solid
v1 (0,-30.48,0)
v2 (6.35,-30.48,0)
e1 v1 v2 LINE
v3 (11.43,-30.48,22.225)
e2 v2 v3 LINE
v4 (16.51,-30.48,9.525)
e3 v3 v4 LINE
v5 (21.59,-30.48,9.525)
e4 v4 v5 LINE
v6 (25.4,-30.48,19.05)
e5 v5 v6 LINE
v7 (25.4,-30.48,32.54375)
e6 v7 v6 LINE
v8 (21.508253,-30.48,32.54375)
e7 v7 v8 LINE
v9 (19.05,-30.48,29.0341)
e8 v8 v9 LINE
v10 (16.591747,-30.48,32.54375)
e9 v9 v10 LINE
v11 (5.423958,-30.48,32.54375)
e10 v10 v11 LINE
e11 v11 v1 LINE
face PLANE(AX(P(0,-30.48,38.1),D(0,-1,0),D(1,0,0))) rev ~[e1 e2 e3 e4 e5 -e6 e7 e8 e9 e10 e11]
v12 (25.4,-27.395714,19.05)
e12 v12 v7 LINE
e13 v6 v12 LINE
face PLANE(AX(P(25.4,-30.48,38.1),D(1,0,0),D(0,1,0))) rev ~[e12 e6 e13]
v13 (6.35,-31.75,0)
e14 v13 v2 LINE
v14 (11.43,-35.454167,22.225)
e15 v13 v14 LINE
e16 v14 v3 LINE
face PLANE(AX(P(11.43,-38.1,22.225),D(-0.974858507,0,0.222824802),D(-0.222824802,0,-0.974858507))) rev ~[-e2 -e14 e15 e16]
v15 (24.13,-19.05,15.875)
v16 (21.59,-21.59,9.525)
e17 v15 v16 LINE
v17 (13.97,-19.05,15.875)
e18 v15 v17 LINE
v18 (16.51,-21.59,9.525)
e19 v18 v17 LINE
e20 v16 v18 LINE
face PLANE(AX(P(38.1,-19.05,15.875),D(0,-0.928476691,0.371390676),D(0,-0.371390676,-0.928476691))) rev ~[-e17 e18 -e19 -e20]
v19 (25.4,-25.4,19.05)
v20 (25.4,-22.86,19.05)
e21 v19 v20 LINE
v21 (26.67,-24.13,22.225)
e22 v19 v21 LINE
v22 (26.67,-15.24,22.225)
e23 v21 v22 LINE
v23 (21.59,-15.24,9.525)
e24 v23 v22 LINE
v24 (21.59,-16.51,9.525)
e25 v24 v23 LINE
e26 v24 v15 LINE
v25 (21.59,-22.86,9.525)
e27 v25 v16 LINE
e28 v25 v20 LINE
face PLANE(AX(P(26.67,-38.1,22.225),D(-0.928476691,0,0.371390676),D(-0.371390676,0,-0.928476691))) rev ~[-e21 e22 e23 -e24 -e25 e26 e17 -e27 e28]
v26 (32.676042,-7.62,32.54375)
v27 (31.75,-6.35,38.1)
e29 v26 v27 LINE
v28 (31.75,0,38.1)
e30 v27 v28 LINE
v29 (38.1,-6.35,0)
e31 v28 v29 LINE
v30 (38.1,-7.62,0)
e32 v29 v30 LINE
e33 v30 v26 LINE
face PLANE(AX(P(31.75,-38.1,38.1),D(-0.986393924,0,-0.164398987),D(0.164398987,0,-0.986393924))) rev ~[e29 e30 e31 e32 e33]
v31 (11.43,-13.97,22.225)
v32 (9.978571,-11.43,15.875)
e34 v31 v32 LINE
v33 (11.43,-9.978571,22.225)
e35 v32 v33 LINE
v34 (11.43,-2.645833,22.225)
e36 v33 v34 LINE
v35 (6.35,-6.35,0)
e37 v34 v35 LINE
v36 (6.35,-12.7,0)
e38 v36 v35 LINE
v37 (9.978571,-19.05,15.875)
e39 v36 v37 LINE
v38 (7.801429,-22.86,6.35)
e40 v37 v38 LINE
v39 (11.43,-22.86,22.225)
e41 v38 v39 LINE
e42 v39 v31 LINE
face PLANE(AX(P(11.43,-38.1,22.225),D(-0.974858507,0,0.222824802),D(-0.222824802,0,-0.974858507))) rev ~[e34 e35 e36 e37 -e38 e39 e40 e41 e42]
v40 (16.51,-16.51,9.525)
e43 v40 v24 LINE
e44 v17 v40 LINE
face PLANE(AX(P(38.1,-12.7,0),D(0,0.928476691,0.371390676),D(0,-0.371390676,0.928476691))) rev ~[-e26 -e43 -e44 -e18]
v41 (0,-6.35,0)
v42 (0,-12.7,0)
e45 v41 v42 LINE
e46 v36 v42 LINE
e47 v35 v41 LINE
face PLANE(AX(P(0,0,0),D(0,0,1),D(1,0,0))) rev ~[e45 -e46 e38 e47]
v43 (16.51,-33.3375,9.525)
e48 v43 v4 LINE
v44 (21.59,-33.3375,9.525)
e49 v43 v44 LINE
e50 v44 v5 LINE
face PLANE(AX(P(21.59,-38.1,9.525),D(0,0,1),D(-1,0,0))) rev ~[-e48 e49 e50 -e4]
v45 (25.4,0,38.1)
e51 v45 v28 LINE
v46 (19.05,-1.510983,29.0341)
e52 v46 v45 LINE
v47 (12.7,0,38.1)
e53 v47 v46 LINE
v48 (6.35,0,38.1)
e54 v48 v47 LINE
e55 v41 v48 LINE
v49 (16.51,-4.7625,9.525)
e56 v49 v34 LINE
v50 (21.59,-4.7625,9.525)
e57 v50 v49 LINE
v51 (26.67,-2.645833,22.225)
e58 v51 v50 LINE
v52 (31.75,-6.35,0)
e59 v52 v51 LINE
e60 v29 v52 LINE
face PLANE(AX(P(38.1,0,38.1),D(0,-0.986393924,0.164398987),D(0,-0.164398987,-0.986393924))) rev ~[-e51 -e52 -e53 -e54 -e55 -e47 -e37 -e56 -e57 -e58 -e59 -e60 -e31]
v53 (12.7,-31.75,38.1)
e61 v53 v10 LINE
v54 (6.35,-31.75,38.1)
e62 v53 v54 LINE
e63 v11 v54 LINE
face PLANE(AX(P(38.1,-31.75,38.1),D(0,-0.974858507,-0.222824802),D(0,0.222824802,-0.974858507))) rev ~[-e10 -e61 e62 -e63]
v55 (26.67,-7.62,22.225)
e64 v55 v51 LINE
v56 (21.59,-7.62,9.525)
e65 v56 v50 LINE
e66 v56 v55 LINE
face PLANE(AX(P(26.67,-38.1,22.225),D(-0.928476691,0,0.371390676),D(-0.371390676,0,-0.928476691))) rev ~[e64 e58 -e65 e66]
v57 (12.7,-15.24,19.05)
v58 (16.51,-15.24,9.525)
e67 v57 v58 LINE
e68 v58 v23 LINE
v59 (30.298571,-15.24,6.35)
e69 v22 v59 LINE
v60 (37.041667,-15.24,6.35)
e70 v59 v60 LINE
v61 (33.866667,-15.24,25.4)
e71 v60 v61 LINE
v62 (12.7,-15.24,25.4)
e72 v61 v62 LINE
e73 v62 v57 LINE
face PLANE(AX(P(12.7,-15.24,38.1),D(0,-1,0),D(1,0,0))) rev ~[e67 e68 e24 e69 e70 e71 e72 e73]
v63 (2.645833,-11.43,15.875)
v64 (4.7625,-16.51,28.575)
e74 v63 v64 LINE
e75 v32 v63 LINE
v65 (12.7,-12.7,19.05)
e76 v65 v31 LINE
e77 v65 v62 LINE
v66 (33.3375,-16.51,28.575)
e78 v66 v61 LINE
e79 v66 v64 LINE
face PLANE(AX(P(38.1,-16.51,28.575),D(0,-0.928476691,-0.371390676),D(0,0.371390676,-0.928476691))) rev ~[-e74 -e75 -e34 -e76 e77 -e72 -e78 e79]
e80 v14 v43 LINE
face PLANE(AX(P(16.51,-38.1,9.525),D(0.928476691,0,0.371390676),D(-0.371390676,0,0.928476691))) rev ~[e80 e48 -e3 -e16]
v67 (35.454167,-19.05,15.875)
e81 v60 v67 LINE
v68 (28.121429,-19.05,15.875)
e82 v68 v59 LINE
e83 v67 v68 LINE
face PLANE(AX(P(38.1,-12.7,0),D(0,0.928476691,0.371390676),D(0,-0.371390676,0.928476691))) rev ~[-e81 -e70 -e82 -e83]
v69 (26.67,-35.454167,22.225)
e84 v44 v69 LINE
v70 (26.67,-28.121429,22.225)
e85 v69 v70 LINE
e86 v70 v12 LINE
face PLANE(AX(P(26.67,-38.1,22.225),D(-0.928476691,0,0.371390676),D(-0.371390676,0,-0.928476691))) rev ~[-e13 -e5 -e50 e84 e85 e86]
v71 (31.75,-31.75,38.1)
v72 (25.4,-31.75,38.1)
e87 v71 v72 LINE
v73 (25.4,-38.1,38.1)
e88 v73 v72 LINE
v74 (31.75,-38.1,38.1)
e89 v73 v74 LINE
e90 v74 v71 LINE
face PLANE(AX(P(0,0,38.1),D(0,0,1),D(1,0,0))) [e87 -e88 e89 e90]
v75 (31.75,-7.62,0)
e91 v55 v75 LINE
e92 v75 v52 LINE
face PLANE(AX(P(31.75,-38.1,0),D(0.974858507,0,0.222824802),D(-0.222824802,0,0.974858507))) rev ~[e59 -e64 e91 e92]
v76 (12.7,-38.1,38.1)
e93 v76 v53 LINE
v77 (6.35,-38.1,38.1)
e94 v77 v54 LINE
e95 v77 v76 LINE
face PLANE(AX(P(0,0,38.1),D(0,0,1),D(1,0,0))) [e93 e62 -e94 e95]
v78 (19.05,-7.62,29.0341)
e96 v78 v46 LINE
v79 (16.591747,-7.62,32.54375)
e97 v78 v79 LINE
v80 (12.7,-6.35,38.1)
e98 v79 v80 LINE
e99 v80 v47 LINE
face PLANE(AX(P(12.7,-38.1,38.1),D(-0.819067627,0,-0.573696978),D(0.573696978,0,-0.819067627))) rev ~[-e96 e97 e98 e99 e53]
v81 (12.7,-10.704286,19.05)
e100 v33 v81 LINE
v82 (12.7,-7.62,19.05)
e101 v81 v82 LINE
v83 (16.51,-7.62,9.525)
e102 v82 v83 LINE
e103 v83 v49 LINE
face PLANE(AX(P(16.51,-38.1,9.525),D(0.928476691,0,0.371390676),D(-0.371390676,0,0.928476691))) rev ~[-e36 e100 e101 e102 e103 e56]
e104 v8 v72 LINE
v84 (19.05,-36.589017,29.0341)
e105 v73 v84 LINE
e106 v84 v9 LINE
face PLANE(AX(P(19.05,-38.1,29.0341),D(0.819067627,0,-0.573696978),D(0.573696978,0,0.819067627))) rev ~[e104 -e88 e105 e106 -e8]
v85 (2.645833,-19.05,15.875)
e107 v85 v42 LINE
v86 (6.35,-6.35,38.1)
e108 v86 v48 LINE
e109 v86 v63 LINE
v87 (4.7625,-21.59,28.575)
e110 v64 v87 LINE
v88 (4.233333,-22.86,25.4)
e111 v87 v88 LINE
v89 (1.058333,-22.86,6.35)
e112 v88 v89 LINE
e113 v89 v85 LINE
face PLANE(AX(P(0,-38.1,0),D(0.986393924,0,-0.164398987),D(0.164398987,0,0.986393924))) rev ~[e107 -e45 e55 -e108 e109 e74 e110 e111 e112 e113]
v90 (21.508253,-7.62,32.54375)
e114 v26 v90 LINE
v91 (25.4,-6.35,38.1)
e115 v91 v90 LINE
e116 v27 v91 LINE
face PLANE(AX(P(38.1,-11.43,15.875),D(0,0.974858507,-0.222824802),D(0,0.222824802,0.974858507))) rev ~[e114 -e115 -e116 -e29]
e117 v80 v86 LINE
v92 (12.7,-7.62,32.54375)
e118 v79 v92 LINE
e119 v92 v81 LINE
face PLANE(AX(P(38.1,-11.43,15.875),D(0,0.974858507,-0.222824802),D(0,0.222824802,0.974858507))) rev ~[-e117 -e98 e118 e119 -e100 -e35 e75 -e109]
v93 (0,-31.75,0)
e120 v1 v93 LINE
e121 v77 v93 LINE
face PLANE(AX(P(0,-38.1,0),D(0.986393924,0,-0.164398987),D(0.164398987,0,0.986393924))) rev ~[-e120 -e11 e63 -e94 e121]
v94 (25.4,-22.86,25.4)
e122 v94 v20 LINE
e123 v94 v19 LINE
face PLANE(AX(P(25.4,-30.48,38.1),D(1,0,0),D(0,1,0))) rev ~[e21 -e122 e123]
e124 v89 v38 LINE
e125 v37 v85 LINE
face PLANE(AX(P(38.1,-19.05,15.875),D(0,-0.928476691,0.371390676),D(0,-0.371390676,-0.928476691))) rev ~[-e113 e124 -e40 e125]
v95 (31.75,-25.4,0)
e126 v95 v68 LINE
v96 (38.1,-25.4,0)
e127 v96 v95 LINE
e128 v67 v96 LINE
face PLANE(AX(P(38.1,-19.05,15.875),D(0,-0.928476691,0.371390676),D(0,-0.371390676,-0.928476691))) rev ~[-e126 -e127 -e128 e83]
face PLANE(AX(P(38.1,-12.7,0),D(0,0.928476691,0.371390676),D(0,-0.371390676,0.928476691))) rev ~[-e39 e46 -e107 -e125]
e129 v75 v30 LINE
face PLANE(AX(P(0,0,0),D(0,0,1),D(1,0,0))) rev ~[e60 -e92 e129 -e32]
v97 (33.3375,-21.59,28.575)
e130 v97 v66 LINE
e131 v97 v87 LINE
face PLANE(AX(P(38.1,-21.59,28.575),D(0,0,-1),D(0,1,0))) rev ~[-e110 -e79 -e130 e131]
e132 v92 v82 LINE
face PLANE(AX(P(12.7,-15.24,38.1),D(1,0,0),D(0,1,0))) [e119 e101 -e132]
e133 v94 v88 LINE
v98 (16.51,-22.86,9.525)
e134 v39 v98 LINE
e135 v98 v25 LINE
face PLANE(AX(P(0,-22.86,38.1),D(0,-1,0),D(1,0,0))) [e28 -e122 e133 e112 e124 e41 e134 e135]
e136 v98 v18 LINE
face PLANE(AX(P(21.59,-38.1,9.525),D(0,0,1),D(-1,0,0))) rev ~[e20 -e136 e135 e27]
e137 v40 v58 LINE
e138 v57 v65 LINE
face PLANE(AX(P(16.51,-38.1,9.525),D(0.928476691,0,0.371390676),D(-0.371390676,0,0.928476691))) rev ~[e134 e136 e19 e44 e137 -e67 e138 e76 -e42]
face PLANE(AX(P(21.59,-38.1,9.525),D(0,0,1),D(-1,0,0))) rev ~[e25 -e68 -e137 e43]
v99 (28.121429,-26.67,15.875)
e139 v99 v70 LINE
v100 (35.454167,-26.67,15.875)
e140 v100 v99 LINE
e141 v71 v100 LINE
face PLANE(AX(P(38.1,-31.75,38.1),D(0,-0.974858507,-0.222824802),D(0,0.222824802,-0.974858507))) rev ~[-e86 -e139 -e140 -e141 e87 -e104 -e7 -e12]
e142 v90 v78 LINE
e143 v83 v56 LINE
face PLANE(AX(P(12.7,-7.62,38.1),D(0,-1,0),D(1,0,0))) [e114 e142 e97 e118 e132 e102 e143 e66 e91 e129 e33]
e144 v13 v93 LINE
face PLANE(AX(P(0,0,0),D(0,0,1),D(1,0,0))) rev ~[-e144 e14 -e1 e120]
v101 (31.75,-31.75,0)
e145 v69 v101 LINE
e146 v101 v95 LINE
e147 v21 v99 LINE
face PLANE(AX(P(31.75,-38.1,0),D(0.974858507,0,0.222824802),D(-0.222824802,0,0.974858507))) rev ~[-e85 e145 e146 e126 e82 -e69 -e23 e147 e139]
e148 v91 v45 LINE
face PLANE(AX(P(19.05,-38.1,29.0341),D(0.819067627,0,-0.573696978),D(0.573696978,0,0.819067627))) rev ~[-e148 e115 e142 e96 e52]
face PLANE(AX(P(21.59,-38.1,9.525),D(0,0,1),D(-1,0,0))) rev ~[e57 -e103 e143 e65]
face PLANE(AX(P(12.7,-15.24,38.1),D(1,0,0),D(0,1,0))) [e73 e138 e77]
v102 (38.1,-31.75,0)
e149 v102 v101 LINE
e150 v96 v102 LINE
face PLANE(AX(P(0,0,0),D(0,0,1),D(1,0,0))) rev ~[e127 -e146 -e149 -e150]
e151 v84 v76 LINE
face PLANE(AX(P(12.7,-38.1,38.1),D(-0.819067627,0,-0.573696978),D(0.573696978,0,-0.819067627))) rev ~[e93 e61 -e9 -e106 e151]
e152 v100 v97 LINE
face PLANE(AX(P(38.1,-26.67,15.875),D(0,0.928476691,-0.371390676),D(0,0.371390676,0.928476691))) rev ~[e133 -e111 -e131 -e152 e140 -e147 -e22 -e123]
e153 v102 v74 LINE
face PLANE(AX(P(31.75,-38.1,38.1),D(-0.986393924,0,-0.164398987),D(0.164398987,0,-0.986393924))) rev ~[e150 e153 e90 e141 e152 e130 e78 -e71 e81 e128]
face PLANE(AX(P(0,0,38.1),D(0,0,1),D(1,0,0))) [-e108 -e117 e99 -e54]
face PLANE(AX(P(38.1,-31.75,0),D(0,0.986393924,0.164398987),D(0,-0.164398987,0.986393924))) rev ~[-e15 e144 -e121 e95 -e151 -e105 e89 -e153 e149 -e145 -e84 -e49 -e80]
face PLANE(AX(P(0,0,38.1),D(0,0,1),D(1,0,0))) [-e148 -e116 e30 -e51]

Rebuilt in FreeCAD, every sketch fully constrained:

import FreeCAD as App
import Part
import Sketcher
Q = App.Units.Quantity


def add_polygon(sketch, points):
    """Adds a closed chain of lines whose ends are joined by coincident constraints."""
    first, n = sketch.GeometryCount, len(points)
    for a, b in zip(points, points[1:] + points[:1]):
        sketch.addGeometry(Part.LineSegment(App.Vector(*a, 0), App.Vector(*b, 0)), False)
    for i in range(n):
        sketch.addConstraint(Sketcher.Constraint("Coincident", first + i, 2, first + (i + 1) % n, 1))

doc = App.newDocument("Part")
params = doc.addObject("Spreadsheet::Sheet", "Params")
for row, (alias, value) in enumerate([
    ("sketch1_width", "1.5 in"),
    ("pad1_length", "1.5 in"),
    ("sketch2_width", "1 in"),
    ("sketch2_width2", "0.2 in"),
    ("sketch2_width3", "0.5 in"),
    ("sketch2_height", "1.5 in"),
    ("pocket1_length", "1.5 in"),
    ("sketch3_width", "1 in"),
    ("sketch3_width2", "0.5 in"),
    ("sketch3_width3", "0.2 in"),
    ("sketch3_height", "1.5 in"),
    ("pocket2_length", "1.5 in"),
    ("sketch4_width", "1 in"),
    ("sketch4_height", "0.3 in"),
    ("pocket3_length", "1.5 in"),
], start=1):
    params.set(f"A{row}", alias)
    params.set(f"B{row}", "=" + value)
    params.setAlias(f"B{row}", alias)

body = doc.addObject("PartDesign::Body", "Body")

sketch1 = body.newObject("Sketcher::SketchObject", "Sketch")
sketch1.AttachmentSupport = (doc.getObject("XZ_Plane"), [""])
sketch1.MapMode = "FlatFace"
add_polygon(sketch1, [(0, 38), (0, 0), (38, 0), (38, 38)])
sketch1.addConstraint([
    Sketcher.Constraint("Vertical", 0),
    Sketcher.Constraint("Horizontal", 1),
    Sketcher.Constraint("Vertical", 2),
    Sketcher.Constraint("Horizontal", 3),
    Sketcher.Constraint("Coincident", 0, 2, -1, 1),
    Sketcher.Constraint("Equal", 3, 0),
    Sketcher.Constraint("DistanceX", 1, 1, 1, 2, Q("1.5 in")),
])
sketch1.setExpression("Constraints[10]", "Params.sketch1_width")
pad1 = body.newObject("PartDesign::Pad", "Pad")
pad1.Profile = sketch1
pad1.setExpression("Length", "Params.pad1_length")

sketch2 = body.newObject("Sketcher::SketchObject", "Sketch001")
sketch2.AttachmentSupport = (doc.getObject("YZ_Plane"), [""])
sketch2.MapMode = "FlatFace"
sketch2.AttachmentOffset = App.Placement(App.Vector(0, 0, 1.5 * 25.4), App.Rotation())
add_polygon(sketch2, [(-11, 16), (-6, 38), (-32, 38), (-27, 16), (-22, 29), (-17, 29)])
add_polygon(sketch2, [(-25, 0), (-13, 0), (-19, 16)])
add_polygon(sketch2, [(-6, 0), (0, 0), (0, 38)])
add_polygon(sketch2, [(-32, 0), (-38, 38), (-38, 0)])
sketch2.addConstraint([
    Sketcher.Constraint("Horizontal", 1),
    Sketcher.Constraint("Horizontal", 4),
    Sketcher.Constraint("Horizontal", 6),
    Sketcher.Constraint("Horizontal", 9),
    Sketcher.Constraint("Vertical", 10),
    Sketcher.Constraint("Vertical", 13),
    Sketcher.Constraint("Horizontal", 14),
    Sketcher.Constraint("Coincident", 9, 2, -1, 1),
    Sketcher.Constraint("PointOnObject", 6, 2, -1),
    Sketcher.Constraint("PointOnObject", 13, 2, -1),
    Sketcher.Constraint("Parallel", 5, 7),
    Sketcher.Constraint("Parallel", 3, 8),
    Sketcher.Constraint("Horizontal", 2, 2, 5, 2),
    Sketcher.Constraint("Horizontal", 5, 2, 7, 2),
    Sketcher.Constraint("Horizontal", 1, 2, 10, 2),
    Sketcher.Constraint("Horizontal", 10, 2, 12, 2),
    Sketcher.Constraint("Vertical", 0, 2, 11, 2),
    Sketcher.Constraint("Vertical", 1, 2, 14, 2),
    Sketcher.Constraint("Equal", 9, 14),
    Sketcher.Constraint("Equal", 0, 2),
    Sketcher.Constraint("Equal", 3, 5),
    Sketcher.Constraint("DistanceX", 1, 2, 1, 1, Q("1 in")),
    Sketcher.Constraint("DistanceX", 4, 1, 4, 2, Q("0.2 in")),
    Sketcher.Constraint("DistanceX", 6, 1, 6, 2, Q("0.5 in")),
    Sketcher.Constraint("DistanceY", 10, 1, 10, 2, Q("1.5 in")),
    Sketcher.Constraint("DistanceX", 8, 2, -1, 1, Q("1 in")),
    Sketcher.Constraint("DistanceX", 13, 2, 6, 2, Q("1 in")),
    Sketcher.Constraint("DistanceX", 1, 2, 2, 2, Q("0.2 in")),
    Sketcher.Constraint("DistanceY", 2, 2, 3, 2, Q("0.5 in")),
])
sketch2.setExpression("Constraints[36]", "Params.sketch2_width")
sketch2.setExpression("Constraints[37]", "Params.sketch2_width2")
sketch2.setExpression("Constraints[38]", "Params.sketch2_width3")
sketch2.setExpression("Constraints[39]", "Params.sketch2_height")
pocket1 = body.newObject("PartDesign::Pocket", "Pocket")
pocket1.Profile = sketch2
pocket1.setExpression("Length", "Params.pocket1_length")

sketch3 = body.newObject("Sketcher::SketchObject", "Sketch002")
sketch3.AttachmentSupport = (doc.getObject("XZ_Plane"), [""])
sketch3.MapMode = "FlatFace"
sketch3.AttachmentOffset = App.Placement(App.Vector(0, 0, 1.5 * 25.4), App.Rotation())
add_polygon(sketch3, [(0, 38), (0, 0), (6, 38)])
add_polygon(sketch3, [(25, 38), (13, 38), (19, 29)])
add_polygon(sketch3, [(32, 38), (38, 0), (38, 38)])
add_polygon(sketch3, [(11, 22), (6, 0), (32, 0), (27, 22), (22, 10), (17, 10)])
sketch3.addConstraint([
    Sketcher.Constraint("Vertical", 0),
    Sketcher.Constraint("Horizontal", 2),
    Sketcher.Constraint("Horizontal", 3),
    Sketcher.Constraint("Vertical", 7),
    Sketcher.Constraint("Horizontal", 8),
    Sketcher.Constraint("Horizontal", 10),
    Sketcher.Constraint("Horizontal", 13),
    Sketcher.Constraint("Coincident", 0, 2, -1, 1),
    Sketcher.Constraint("PointOnObject", 6, 2, -1),
    Sketcher.Constraint("PointOnObject", 9, 2, -1),
    Sketcher.Constraint("Horizontal", 2, 2, 3, 2),
    Sketcher.Constraint("Horizontal", 5, 2, 7, 2),
    Sketcher.Constraint("Horizontal", 11, 2, 14, 2),
    Sketcher.Constraint("Vertical", 1, 2, 9, 2),
    Sketcher.Constraint("Vertical", 8, 2, 10, 2),
    Sketcher.Constraint("Equal", 2, 8),
    Sketcher.Constraint("Equal", 4, 5),
    Sketcher.Constraint("Equal", 9, 11),
    Sketcher.Constraint("Equal", 12, 14),
    Sketcher.Constraint("DistanceX", 10, 1, 10, 2, Q("1 in")),
    Sketcher.Constraint("DistanceX", 3, 2, 3, 1, Q("0.5 in")),
    Sketcher.Constraint("DistanceX", 13, 2, 13, 1, Q("0.2 in")),
    Sketcher.Constraint("DistanceY", 0, 2, 0, 1, Q("1.5 in")),
    Sketcher.Constraint("DistanceX", -1, 1, 5, 2, Q("1 in")),
    Sketcher.Constraint("DistanceX", 3, 2, 6, 2, Q("1 in")),
    Sketcher.Constraint("DistanceX", 4, 2, 11, 2, Q("0.3 in")),
    Sketcher.Constraint("DistanceY", 12, 2, 11, 2, Q("0.5 in")),
    Sketcher.Constraint("DistanceY", -1, 1, 11, 2, Q("0.875 in")),
    Sketcher.Constraint("DistanceY", -1, 1, 4, 2, 29.0341),
])
sketch3.setExpression("Constraints[34]", "Params.sketch3_width")
sketch3.setExpression("Constraints[35]", "Params.sketch3_width2")
sketch3.setExpression("Constraints[36]", "Params.sketch3_width3")
sketch3.setExpression("Constraints[37]", "Params.sketch3_height")
pocket2 = body.newObject("PartDesign::Pocket", "Pocket001")
pocket2.Profile = sketch3
pocket2.setExpression("Length", "Params.pocket2_length")

sketch4 = body.newObject("Sketcher::SketchObject", "Sketch003")
sketch4.AttachmentSupport = (doc.getObject("XY_Plane"), [""])
sketch4.MapMode = "FlatFace"
sketch4.AttachmentOffset = App.Placement(App.Vector(0, 0, 1.5 * 25.4), App.Rotation())
add_polygon(sketch4, [(13, -8), (13, -15), (38, -15), (38, -8)])
add_polygon(sketch4, [(0, -23), (0, -30), (25, -30), (25, -23)])
sketch4.addConstraint([
    Sketcher.Constraint("Vertical", 0),
    Sketcher.Constraint("Horizontal", 1),
    Sketcher.Constraint("Vertical", 2),
    Sketcher.Constraint("Horizontal", 3),
    Sketcher.Constraint("Vertical", 4),
    Sketcher.Constraint("Horizontal", 5),
    Sketcher.Constraint("Vertical", 6),
    Sketcher.Constraint("Horizontal", 7),
    Sketcher.Constraint("PointOnObject", 4, 2, -2),
    Sketcher.Constraint("Equal", 3, 5),
    Sketcher.Constraint("Equal", 2, 4),
    Sketcher.Constraint("DistanceX", 1, 1, 1, 2, Q("1 in")),
    Sketcher.Constraint("DistanceY", 0, 2, 0, 1, Q("0.3 in")),
    Sketcher.Constraint("DistanceX", -1, 1, 0, 2, Q("0.5 in")),
    Sketcher.Constraint("DistanceY", 0, 2, -1, 1, Q("0.6 in")),
    Sketcher.Constraint("DistanceY", 4, 2, -1, 1, Q("1.2 in")),
])
sketch4.setExpression("Constraints[19]", "Params.sketch4_width")
sketch4.setExpression("Constraints[20]", "Params.sketch4_height")
pocket3 = body.newObject("PartDesign::Pocket", "Pocket002")
pocket3.Profile = sketch4
pocket3.setExpression("Length", "Params.pocket3_length")

doc.recompute()
